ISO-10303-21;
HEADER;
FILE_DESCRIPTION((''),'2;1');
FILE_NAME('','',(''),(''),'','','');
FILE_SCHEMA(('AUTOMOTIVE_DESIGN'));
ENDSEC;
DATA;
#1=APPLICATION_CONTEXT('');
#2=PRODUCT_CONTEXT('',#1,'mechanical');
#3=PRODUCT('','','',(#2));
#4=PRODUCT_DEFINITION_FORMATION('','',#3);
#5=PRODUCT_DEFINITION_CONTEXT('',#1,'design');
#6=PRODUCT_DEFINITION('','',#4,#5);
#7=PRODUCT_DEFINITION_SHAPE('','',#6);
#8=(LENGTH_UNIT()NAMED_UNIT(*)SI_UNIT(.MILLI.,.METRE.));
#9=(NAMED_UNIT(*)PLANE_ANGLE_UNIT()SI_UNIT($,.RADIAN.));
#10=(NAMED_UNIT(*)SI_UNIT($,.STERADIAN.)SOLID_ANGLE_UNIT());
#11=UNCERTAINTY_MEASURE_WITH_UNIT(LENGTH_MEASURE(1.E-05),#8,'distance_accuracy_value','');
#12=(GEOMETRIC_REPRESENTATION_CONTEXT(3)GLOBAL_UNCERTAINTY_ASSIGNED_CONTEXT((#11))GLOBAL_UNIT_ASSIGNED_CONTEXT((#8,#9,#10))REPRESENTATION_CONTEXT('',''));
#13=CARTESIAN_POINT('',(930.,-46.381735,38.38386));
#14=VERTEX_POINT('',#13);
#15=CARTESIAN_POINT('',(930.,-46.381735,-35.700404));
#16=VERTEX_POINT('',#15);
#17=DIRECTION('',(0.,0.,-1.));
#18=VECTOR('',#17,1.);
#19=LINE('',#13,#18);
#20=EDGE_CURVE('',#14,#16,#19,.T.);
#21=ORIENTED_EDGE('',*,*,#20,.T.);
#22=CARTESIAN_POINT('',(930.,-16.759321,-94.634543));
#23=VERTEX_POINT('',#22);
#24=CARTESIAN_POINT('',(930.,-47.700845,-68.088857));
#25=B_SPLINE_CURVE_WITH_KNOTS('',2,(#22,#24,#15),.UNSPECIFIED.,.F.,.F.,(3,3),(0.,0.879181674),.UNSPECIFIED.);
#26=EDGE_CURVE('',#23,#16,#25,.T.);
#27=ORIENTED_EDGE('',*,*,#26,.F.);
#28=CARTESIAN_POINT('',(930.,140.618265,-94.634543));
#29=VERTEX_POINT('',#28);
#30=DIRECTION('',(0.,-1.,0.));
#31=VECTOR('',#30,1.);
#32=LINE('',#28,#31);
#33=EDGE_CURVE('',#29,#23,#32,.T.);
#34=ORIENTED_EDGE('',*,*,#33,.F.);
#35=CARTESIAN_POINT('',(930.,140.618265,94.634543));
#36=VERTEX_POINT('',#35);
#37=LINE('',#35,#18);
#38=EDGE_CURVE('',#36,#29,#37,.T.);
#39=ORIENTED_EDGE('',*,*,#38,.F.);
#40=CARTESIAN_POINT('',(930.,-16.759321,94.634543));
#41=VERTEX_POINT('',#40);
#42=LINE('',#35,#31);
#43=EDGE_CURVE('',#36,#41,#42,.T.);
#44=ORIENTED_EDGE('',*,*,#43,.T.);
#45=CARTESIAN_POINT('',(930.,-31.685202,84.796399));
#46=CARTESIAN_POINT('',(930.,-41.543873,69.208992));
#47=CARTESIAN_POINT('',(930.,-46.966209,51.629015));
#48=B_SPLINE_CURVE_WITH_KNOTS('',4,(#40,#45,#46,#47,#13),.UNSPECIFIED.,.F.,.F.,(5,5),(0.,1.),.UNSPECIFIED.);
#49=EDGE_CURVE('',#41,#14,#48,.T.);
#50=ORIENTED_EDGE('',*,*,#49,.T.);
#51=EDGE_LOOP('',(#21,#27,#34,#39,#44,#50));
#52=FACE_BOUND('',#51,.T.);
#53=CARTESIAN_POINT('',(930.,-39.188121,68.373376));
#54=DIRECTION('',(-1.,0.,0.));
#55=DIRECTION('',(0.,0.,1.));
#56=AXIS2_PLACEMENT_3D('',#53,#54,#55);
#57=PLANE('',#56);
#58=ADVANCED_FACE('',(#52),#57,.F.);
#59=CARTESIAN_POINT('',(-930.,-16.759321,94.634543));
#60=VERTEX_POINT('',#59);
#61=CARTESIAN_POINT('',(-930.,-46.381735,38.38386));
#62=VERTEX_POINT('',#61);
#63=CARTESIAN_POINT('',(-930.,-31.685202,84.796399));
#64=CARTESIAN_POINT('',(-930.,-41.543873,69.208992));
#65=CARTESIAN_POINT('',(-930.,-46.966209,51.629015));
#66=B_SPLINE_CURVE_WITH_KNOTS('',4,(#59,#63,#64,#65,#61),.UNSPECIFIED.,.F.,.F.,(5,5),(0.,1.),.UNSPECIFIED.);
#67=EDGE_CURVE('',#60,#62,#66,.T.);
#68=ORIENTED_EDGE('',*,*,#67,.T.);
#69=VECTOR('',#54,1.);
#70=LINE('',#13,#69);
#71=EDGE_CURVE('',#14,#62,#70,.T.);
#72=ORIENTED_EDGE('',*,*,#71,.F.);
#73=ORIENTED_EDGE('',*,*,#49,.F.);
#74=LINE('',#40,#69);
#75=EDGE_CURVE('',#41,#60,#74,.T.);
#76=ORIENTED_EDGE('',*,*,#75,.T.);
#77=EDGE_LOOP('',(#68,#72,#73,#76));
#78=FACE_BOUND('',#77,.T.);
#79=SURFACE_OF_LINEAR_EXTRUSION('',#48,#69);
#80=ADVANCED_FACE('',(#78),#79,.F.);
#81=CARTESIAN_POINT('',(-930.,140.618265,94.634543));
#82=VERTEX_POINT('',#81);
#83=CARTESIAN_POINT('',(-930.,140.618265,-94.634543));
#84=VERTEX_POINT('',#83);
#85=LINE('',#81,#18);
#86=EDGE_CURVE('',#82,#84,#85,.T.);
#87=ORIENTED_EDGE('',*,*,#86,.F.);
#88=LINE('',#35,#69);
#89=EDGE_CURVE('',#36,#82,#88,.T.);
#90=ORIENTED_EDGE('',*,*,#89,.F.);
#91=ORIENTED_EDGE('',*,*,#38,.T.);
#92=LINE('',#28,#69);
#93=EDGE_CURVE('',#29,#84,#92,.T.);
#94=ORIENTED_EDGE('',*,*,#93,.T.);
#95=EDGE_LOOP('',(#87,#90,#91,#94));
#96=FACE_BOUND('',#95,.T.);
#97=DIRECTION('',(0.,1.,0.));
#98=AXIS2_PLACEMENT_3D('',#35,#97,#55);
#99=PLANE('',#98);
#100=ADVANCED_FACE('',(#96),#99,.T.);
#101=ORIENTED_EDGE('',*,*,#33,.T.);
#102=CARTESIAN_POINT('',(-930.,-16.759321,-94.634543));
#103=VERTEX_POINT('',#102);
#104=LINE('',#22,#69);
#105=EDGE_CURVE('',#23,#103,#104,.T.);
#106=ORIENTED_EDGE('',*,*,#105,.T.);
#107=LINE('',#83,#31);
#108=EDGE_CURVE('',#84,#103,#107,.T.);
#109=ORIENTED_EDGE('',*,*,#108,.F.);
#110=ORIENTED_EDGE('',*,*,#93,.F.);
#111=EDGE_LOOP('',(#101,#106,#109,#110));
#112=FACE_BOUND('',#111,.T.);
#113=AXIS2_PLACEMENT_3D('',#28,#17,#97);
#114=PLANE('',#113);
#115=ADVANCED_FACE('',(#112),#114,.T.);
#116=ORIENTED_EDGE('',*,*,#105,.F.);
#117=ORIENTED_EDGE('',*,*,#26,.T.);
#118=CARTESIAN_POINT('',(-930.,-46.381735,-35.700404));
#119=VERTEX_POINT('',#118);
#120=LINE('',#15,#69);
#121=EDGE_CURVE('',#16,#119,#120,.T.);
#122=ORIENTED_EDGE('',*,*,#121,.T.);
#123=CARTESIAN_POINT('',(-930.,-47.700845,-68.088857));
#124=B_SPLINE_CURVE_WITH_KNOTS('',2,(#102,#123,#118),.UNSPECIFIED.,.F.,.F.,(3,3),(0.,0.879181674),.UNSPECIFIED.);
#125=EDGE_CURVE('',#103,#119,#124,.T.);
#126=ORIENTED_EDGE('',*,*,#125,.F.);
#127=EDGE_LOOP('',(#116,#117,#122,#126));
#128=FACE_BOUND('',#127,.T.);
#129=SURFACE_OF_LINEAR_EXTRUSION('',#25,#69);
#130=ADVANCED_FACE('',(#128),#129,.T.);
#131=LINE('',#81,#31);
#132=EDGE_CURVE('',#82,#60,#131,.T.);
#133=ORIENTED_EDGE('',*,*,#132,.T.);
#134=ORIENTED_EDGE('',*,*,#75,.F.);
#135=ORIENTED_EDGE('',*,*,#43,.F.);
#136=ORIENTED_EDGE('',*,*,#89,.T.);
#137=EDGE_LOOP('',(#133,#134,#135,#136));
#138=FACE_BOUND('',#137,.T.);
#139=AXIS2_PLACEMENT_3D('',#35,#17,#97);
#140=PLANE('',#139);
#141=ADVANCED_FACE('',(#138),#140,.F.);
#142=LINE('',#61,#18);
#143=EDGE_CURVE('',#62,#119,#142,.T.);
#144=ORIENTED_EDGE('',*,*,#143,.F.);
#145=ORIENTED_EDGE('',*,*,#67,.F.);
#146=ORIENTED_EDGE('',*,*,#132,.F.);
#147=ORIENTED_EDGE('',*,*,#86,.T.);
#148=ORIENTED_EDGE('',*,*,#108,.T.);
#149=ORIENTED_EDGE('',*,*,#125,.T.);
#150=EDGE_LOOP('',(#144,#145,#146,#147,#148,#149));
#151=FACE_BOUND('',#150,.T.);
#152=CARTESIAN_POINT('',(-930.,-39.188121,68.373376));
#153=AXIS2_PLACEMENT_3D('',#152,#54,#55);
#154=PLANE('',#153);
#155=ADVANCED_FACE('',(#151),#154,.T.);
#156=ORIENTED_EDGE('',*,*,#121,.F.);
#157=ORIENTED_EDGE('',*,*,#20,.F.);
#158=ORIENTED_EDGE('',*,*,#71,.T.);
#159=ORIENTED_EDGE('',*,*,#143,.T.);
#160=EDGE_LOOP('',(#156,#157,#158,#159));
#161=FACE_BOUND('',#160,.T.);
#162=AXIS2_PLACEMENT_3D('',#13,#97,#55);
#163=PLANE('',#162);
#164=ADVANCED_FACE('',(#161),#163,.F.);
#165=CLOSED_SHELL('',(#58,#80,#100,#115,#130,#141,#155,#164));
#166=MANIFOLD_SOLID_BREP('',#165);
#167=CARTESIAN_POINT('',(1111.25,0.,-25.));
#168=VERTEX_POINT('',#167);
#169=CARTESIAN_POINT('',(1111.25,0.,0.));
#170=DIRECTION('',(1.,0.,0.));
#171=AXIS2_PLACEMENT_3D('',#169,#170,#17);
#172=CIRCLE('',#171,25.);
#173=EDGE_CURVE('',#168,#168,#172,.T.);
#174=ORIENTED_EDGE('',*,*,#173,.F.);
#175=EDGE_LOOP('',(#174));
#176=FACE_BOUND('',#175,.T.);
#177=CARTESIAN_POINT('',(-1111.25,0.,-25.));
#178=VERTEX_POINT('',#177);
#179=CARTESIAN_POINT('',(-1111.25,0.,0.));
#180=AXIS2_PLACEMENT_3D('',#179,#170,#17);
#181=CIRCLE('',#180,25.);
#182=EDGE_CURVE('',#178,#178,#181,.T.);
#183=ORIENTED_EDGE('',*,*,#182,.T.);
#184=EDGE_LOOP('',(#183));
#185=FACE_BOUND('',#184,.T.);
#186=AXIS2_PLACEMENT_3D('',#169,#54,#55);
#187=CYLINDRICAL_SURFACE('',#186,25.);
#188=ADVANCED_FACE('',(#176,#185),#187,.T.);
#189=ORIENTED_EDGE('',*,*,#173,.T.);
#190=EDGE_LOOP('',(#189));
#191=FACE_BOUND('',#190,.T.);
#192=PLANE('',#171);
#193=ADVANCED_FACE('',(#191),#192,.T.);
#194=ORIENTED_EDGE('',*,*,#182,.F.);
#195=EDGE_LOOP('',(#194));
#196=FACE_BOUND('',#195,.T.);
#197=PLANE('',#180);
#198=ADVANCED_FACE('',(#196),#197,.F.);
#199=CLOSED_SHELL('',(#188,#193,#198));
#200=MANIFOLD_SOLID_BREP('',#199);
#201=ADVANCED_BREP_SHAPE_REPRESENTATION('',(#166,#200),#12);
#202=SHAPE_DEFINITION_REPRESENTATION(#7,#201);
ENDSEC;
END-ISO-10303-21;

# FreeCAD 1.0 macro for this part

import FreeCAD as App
import Part
import Sketcher
from FreeCAD import Vector

doc = App.newDocument("Part")
params = doc.addObject("Spreadsheet::Sheet", "Params")
for row, (alias, value) in enumerate([
    ("pad1_length", "1860 mm"),
    ("sketch2_diameter", "50 mm"),
    ("pad2_length", "2222.5 mm"),
], start=1):
    params.set(f"A{row}", alias)
    params.set(f"B{row}", "=" + value)
    params.setAlias(f"B{row}", alias)

body = doc.addObject("PartDesign::Body", "Body")

# Sketch on YZ plane
sketch1 = doc.addObject("Sketcher::SketchObject", "Sketch")
body.addObject(sketch1)
sketch1.AttachmentSupport = (doc.YZ_Plane, [""])
sketch1.MapMode = "FlatFace"
sketch1.addGeometry([
    Part.LineSegment(Vector(140.618265, 94.634543, 0), Vector(-16.759321, 94.634543, 0)),  # 0
    Part.BSplineCurve([Vector(-16.759321, 94.634543, 0), Vector(-31.685202, 84.796399, 0), Vector(-41.543873, 69.208992, 0), Vector(-46.966209, 51.629015, 0), Vector(-46.381735, 38.38386, 0)], [5, 5], [0, 1], False, 4, [1, 1, 1, 1, 1], False),  # 1
    Part.LineSegment(Vector(-46.381735, 38.38386, 0), Vector(-46.381735, -35.700404, 0)),  # 2
    Part.BSplineCurve([Vector(-16.759321, -94.634543, 0), Vector(-47.700845, -68.088857, 0), Vector(-46.381735, -35.700404, 0)], [3, 3], [0, 0.879181674], False, 2, [1, 1, 1], False),  # 3
    Part.LineSegment(Vector(-16.759321, -94.634543, 0), Vector(140.618265, -94.634543, 0)),  # 4
    Part.LineSegment(Vector(140.618265, -94.634543, 0), Vector(140.618265, 94.634543, 0)),  # 5
], False)
sketch1.addConstraint([
    Sketcher.Constraint("Block", 1),
    Sketcher.Constraint("Block", 3),
    Sketcher.Constraint("Coincident", 0, 2, 1, 1),
    Sketcher.Constraint("Coincident", 1, 2, 2, 1),
    Sketcher.Constraint("Coincident", 2, 2, 3, 2),
    Sketcher.Constraint("Coincident", 3, 1, 4, 1),
    Sketcher.Constraint("Coincident", 4, 2, 5, 1),
    Sketcher.Constraint("Coincident", 5, 2, 0, 1),
    Sketcher.Constraint("Horizontal", 0),
    Sketcher.Constraint("Horizontal", 4),
    Sketcher.Constraint("Vertical", 5),
    Sketcher.Constraint("DistanceX", 2, 2, 4, 2, 187.0),
])
pad1 = doc.addObject("PartDesign::Pad", "Pad")
body.addObject(pad1)
pad1.Profile = sketch1
pad1.setExpression("Length", "Params.pad1_length")
pad1.Midplane = True
body2 = doc.addObject("PartDesign::Body", "Body001")

# Sketch on YZ plane
sketch2 = doc.addObject("Sketcher::SketchObject", "Sketch001")
body2.addObject(sketch2)
sketch2.AttachmentSupport = (doc.getObject("YZ_Plane001"), [""])
sketch2.MapMode = "FlatFace"
sketch2.addGeometry(Part.Circle(Vector(0, 0, 0), Vector(0, 0, 1), 25), False)
sketch2.addConstraint([
    Sketcher.Constraint("Coincident", 0, 3, -1, 1),
    Sketcher.Constraint("Diameter", 0, 50.0),
])
sketch2.setExpression("Constraints[1]", "Params.sketch2_diameter")
pad2 = doc.addObject("PartDesign::Pad", "Pad001")
body2.addObject(pad2)
pad2.Profile = sketch2
pad2.setExpression("Length", "Params.pad2_length")
pad2.Midplane = True

doc.recompute()
